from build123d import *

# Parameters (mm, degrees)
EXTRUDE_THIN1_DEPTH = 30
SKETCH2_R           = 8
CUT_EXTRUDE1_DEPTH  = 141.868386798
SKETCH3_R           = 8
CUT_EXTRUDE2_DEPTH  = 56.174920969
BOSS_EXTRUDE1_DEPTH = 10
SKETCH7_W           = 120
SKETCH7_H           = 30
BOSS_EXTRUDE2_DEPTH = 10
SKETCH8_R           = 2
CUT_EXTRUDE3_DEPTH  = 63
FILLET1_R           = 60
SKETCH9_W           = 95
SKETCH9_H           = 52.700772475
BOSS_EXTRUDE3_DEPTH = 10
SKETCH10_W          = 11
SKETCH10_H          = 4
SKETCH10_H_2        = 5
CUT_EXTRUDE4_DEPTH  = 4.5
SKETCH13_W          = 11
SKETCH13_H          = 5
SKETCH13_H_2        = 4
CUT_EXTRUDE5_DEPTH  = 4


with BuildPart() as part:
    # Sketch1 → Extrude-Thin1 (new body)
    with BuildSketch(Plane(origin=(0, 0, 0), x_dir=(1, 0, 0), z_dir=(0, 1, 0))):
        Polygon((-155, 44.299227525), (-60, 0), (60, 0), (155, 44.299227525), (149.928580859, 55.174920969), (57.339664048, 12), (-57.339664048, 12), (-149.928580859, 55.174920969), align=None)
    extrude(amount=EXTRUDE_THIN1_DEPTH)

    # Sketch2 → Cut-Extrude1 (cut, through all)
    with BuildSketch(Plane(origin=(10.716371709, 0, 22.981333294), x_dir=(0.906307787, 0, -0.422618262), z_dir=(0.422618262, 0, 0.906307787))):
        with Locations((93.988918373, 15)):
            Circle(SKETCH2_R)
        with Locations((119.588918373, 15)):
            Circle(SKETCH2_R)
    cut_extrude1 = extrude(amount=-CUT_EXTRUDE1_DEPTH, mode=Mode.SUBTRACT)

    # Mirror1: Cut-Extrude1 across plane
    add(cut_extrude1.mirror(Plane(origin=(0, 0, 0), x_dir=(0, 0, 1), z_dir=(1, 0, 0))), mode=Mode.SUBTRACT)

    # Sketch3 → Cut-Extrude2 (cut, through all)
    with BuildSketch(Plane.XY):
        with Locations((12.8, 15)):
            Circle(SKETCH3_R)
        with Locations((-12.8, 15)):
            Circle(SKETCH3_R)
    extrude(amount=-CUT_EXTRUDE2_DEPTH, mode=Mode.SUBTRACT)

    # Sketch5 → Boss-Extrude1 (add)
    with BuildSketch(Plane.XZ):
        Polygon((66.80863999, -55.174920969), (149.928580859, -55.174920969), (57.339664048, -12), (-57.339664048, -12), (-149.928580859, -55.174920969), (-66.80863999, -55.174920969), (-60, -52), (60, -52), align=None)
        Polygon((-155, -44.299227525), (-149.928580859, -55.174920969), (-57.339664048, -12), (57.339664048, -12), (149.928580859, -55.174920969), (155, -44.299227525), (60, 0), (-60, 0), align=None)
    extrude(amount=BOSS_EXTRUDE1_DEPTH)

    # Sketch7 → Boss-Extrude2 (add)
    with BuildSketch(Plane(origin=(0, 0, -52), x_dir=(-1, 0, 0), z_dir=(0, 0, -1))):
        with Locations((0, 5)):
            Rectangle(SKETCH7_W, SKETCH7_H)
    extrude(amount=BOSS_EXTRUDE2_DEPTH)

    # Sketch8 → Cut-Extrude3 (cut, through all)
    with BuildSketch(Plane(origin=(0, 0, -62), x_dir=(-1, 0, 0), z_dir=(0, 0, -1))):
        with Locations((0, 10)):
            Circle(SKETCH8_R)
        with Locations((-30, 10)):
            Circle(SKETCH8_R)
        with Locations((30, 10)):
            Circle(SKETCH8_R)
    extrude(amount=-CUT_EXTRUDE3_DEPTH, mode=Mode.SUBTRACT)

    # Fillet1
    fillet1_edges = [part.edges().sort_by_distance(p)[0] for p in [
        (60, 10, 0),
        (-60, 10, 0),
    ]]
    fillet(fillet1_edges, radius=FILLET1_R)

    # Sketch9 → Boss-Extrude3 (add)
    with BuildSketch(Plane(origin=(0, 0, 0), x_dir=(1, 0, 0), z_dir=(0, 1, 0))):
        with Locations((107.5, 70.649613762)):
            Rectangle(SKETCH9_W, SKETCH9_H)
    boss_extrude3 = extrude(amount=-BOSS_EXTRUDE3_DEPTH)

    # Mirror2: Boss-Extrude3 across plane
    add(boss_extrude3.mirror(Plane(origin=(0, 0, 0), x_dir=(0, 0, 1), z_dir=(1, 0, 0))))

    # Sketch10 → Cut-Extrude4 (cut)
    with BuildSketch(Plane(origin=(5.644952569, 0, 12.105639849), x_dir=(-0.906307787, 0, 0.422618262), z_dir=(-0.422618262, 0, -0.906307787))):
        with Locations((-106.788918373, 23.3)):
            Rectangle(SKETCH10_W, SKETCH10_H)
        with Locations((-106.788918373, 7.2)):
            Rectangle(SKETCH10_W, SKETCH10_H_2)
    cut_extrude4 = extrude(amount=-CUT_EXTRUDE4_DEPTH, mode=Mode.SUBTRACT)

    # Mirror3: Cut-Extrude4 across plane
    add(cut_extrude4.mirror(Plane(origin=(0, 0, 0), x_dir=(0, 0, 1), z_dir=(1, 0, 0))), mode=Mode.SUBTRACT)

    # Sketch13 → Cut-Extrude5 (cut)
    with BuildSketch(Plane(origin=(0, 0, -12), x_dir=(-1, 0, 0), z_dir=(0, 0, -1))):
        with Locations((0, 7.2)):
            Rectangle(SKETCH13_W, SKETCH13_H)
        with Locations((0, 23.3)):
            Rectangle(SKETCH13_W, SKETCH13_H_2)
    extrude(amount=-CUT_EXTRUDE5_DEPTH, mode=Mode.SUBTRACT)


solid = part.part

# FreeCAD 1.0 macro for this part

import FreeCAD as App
import Part
import Sketcher

V = App.Vector
Q = App.Units.Quantity


def edges_at(feature, points):
    """Names of the edges that pass closest to the given points."""
    edges = feature.Shape.Edges
    near = lambda p: min(range(len(edges)), key=lambda i: edges[i].distToShape(Part.Vertex(*p))[0])
    return sorted({f"Edge{near(p) + 1}" for p in points})

doc = App.newDocument("Part")
body = doc.addObject("PartDesign::Body", "Body")

# Sketch on XZ plane
sketch1 = body.newObject("Sketcher::SketchObject", "Sketch")
sketch1.AttachmentSupport = (doc.getObject("XZ_Plane"), [""])
sketch1.MapMode = "FlatFace"
sketch1.addGeometry(Part.LineSegment(V(-155, -44, 0), V(-60, 0, 0)), False)
sketch1.addGeometry(Part.LineSegment(V(-60, 0, 0), V(60, 0, 0)), False)
sketch1.addGeometry(Part.LineSegment(V(60, 0, 0), V(155, -44, 0)), False)
sketch1.addGeometry(Part.LineSegment(V(155, -44, 0), V(150, -55, 0)), False)
sketch1.addGeometry(Part.LineSegment(V(150, -55, 0), V(57, -12, 0)), False)
sketch1.addGeometry(Part.LineSegment(V(57, -12, 0), V(-57, -12, 0)), False)
sketch1.addGeometry(Part.LineSegment(V(-57, -12, 0), V(-150, -55, 0)), False)
sketch1.addGeometry(Part.LineSegment(V(-150, -55, 0), V(-155, -44, 0)), False)
sketch1.addConstraint(Sketcher.Constraint("Coincident", 0, 2, 1, 1))
sketch1.addConstraint(Sketcher.Constraint("Coincident", 1, 2, 2, 1))
sketch1.addConstraint(Sketcher.Constraint("Coincident", 2, 2, 3, 1))
sketch1.addConstraint(Sketcher.Constraint("Coincident", 3, 2, 4, 1))
sketch1.addConstraint(Sketcher.Constraint("Coincident", 4, 2, 5, 1))
sketch1.addConstraint(Sketcher.Constraint("Coincident", 5, 2, 6, 1))
sketch1.addConstraint(Sketcher.Constraint("Coincident", 6, 2, 7, 1))
sketch1.addConstraint(Sketcher.Constraint("Coincident", 7, 2, 0, 1))
sketch1.addConstraint(Sketcher.Constraint("Horizontal", 1))
sketch1.addConstraint(Sketcher.Constraint("Horizontal", 5))
sketch1.addConstraint(Sketcher.Constraint("Symmetric", 0, 2, 1, 2, -1, 1))
sketch1.addConstraint(Sketcher.Constraint("Symmetric", 3, 2, 6, 2, -2))
sketch1.addConstraint(Sketcher.Constraint("Symmetric", 2, 2, 7, 2, -2))
sketch1.addConstraint(Sketcher.Constraint("Perpendicular", 2, 3))
sketch1.addConstraint(Sketcher.Constraint("Perpendicular", 3, 4))
sketch1.addConstraint(Sketcher.Constraint("Parallel", 0, 6))
sketch1.addConstraint(Sketcher.Constraint("DistanceX", 1, 1, 1, 2, 120.0))
sketch1.addConstraint(Sketcher.Constraint("Angle", 0, Q("25 deg")))
sketch1.addConstraint(Sketcher.Constraint("Distance", 3, 12.0))
sketch1.addConstraint(Sketcher.Constraint("DistanceX", -1, 1, 2, 2, 155.0))
sketch1.addConstraint(Sketcher.Constraint("DistanceY", 4, 2, -1, 1, 12.0))
pad1 = body.newObject("PartDesign::Pad", "Pad")
pad1.Profile = sketch1
pad1.Length = 30
pad1.Reversed = True

# Sketch on an angled plane
sketch2 = body.newObject("Sketcher::SketchObject", "Sketch001")
sketch2.Placement = App.Placement(V(10.716372, 0, 22.981333), App.Rotation(V(0.906307787, 0, -0.422618262), V(0, 1, 0), V(0.422618262, 0, 0.906307787), "ZXY"))
sketch2.addGeometry(Part.Circle(V(94, 15, 0), V(0, 0, 1), 8), False)
sketch2.addGeometry(Part.Circle(V(120, 15, 0), V(0, 0, 1), 8), False)
sketch2.addConstraint(Sketcher.Constraint("Equal", 0, 1))
sketch2.addConstraint(Sketcher.Constraint("Horizontal", 0, 3, 1, 3))
sketch2.addConstraint(Sketcher.Constraint("Diameter", 0, 16.0))
sketch2.addConstraint(Sketcher.Constraint("DistanceY", -1, 1, 0, 3, 15.0))
sketch2.addConstraint(Sketcher.Constraint("DistanceX", 0, 3, 1, 3, 25.6))
sketch2.addConstraint(Sketcher.Constraint("DistanceX", -1, 1, 0, 3, 93.988918))
pocket1 = body.newObject("PartDesign::Pocket", "Pocket")
pocket1.Profile = sketch2
pocket1.Type = "ThroughAll"
doc.recompute()

mirrored = body.newObject("PartDesign::Mirrored", "Mirrored")
mirrored.Originals = [pocket1]
mirrored.MirrorPlane = (doc.getObject("YZ_Plane"), [""])
body.Tip = mirrored

# Sketch on XY plane
sketch3 = body.newObject("Sketcher::SketchObject", "Sketch002")
sketch3.AttachmentSupport = (doc.getObject("XY_Plane"), [""])
sketch3.MapMode = "FlatFace"
sketch3.addGeometry(Part.Circle(V(13, 15, 0), V(0, 0, 1), 8), False)
sketch3.addGeometry(Part.Circle(V(-13, 15, 0), V(0, 0, 1), 8), False)
sketch3.addConstraint(Sketcher.Constraint("Equal", 0, 1))
sketch3.addConstraint(Sketcher.Constraint("Symmetric", 0, 3, 1, 3, -2))
sketch3.addConstraint(Sketcher.Constraint("Diameter", 0, 16.0))
sketch3.addConstraint(Sketcher.Constraint("DistanceY", -1, 1, 0, 3, 15.0))
sketch3.addConstraint(Sketcher.Constraint("DistanceX", -1, 1, 0, 3, 12.8))
pocket2 = body.newObject("PartDesign::Pocket", "Pocket001")
pocket2.Profile = sketch3
pocket2.Type = "ThroughAll"

# Sketch on XZ plane
sketch4 = body.newObject("Sketcher::SketchObject", "Sketch003")
sketch4.AttachmentSupport = (doc.getObject("XZ_Plane"), [""])
sketch4.MapMode = "FlatFace"
sketch4.addGeometry(Part.LineSegment(V(67, -55, 0), V(150, -55, 0)), False)
sketch4.addGeometry(Part.LineSegment(V(150, -55, 0), V(155, -44, 0)), False)
sketch4.addGeometry(Part.LineSegment(V(155, -44, 0), V(60, 0, 0)), False)
sketch4.addGeometry(Part.LineSegment(V(60, 0, 0), V(-60, 0, 0)), False)
sketch4.addGeometry(Part.LineSegment(V(-60, 0, 0), V(-155, -44, 0)), False)
sketch4.addGeometry(Part.LineSegment(V(-155, -44, 0), V(-150, -55, 0)), False)
sketch4.addGeometry(Part.LineSegment(V(-150, -55, 0), V(-67, -55, 0)), False)
sketch4.addGeometry(Part.LineSegment(V(-67, -55, 0), V(-60, -52, 0)), False)
sketch4.addGeometry(Part.LineSegment(V(-60, -52, 0), V(60, -52, 0)), False)
sketch4.addGeometry(Part.LineSegment(V(60, -52, 0), V(67, -55, 0)), False)
sketch4.addConstraint(Sketcher.Constraint("Coincident", 0, 2, 1, 1))
sketch4.addConstraint(Sketcher.Constraint("Coincident", 1, 2, 2, 1))
sketch4.addConstraint(Sketcher.Constraint("Coincident", 2, 2, 3, 1))
sketch4.addConstraint(Sketcher.Constraint("Coincident", 3, 2, 4, 1))
sketch4.addConstraint(Sketcher.Constraint("Coincident", 4, 2, 5, 1))
sketch4.addConstraint(Sketcher.Constraint("Coincident", 5, 2, 6, 1))
sketch4.addConstraint(Sketcher.Constraint("Coincident", 6, 2, 7, 1))
sketch4.addConstraint(Sketcher.Constraint("Coincident", 7, 2, 8, 1))
sketch4.addConstraint(Sketcher.Constraint("Coincident", 8, 2, 9, 1))
sketch4.addConstraint(Sketcher.Constraint("Coincident", 9, 2, 0, 1))
sketch4.addConstraint(Sketcher.Constraint("Horizontal", 0))
sketch4.addConstraint(Sketcher.Constraint("Horizontal", 3))
sketch4.addConstraint(Sketcher.Constraint("Horizontal", 6))
sketch4.addConstraint(Sketcher.Constraint("Horizontal", 8))
sketch4.addConstraint(Sketcher.Constraint("Symmetric", 2, 2, 3, 2, -1, 1))
sketch4.addConstraint(Sketcher.Constraint("Symmetric", 1, 2, 4, 2, -2))
sketch4.addConstraint(Sketcher.Constraint("Symmetric", 0, 2, 5, 2, -2))
sketch4.addConstraint(Sketcher.Constraint("Perpendicular", 1, 2))
sketch4.addConstraint(Sketcher.Constraint("Perpendicular", 5, 7))
sketch4.addConstraint(Sketcher.Constraint("Parallel", 2, 9))
sketch4.addConstraint(Sketcher.Constraint("Vertical", 3, 2, 7, 2))
sketch4.addConstraint(Sketcher.Constraint("Vertical", 2, 2, 8, 2))
sketch4.addConstraint(Sketcher.Constraint("DistanceX", 3, 2, 3, 1, 120.0))
sketch4.addConstraint(Sketcher.Constraint("Angle", 1, Q("65 deg")))
sketch4.addConstraint(Sketcher.Constraint("Distance", 1, 12.0))
sketch4.addConstraint(Sketcher.Constraint("DistanceX", -1, 1, 1, 2, 155.0))
sketch4.addConstraint(Sketcher.Constraint("DistanceY", 7, 2, -1, 1, 52.0))
pad2 = body.newObject("PartDesign::Pad", "Pad001")
pad2.Profile = sketch4
pad2.Length = 10

# Sketch on XY plane
sketch5 = body.newObject("Sketcher::SketchObject", "Sketch004")
sketch5.AttachmentSupport = (doc.getObject("XY_Plane"), [""])
sketch5.MapMode = "FlatFace"
sketch5.AttachmentOffset = App.Placement(V(0, 0, -52), App.Rotation())
sketch5.addGeometry(Part.LineSegment(V(60, 20, 0), V(60, -10, 0)), False)
sketch5.addGeometry(Part.LineSegment(V(60, -10, 0), V(-60, -10, 0)), False)
sketch5.addGeometry(Part.LineSegment(V(-60, -10, 0), V(-60, 20, 0)), False)
sketch5.addGeometry(Part.LineSegment(V(-60, 20, 0), V(60, 20, 0)), False)
sketch5.addConstraint(Sketcher.Constraint("Coincident", 0, 2, 1, 1))
sketch5.addConstraint(Sketcher.Constraint("Coincident", 1, 2, 2, 1))
sketch5.addConstraint(Sketcher.Constraint("Coincident", 2, 2, 3, 1))
sketch5.addConstraint(Sketcher.Constraint("Coincident", 3, 2, 0, 1))
sketch5.addConstraint(Sketcher.Constraint("Vertical", 0))
sketch5.addConstraint(Sketcher.Constraint("Horizontal", 1))
sketch5.addConstraint(Sketcher.Constraint("Vertical", 2))
sketch5.addConstraint(Sketcher.Constraint("Horizontal", 3))
sketch5.addConstraint(Sketcher.Constraint("DistanceX", 1, 2, 1, 1, 120.0))
sketch5.addConstraint(Sketcher.Constraint("DistanceY", 0, 2, 0, 1, 30.0))
sketch5.addConstraint(Sketcher.Constraint("DistanceX", -1, 1, 0, 2, 60.0))
sketch5.addConstraint(Sketcher.Constraint("DistanceY", 0, 2, -1, 1, 10.0))
pad3 = body.newObject("PartDesign::Pad", "Pad002")
pad3.Profile = sketch5
pad3.Length = 10
pad3.Reversed = True

# Sketch on XY plane
sketch6 = body.newObject("Sketcher::SketchObject", "Sketch005")
sketch6.AttachmentSupport = (doc.getObject("XY_Plane"), [""])
sketch6.MapMode = "FlatFace"
sketch6.AttachmentOffset = App.Placement(V(0, 0, -62), App.Rotation())
sketch6.addGeometry(Part.Circle(V(0, 10, 0), V(0, 0, 1), 2), False)
sketch6.addGeometry(Part.Circle(V(30, 10, 0), V(0, 0, 1), 2), False)
sketch6.addGeometry(Part.Circle(V(-30, 10, 0), V(0, 0, 1), 2), False)
sketch6.addConstraint(Sketcher.Constraint("Equal", 0, 1))
sketch6.addConstraint(Sketcher.Constraint("Equal", 1, 2))
sketch6.addConstraint(Sketcher.Constraint("Symmetric", 1, 3, 2, 3, -2))
sketch6.addConstraint(Sketcher.Constraint("PointOnObject", 0, 3, -2))
sketch6.addConstraint(Sketcher.Constraint("Horizontal", 0, 3, 1, 3))
sketch6.addConstraint(Sketcher.Constraint("Diameter", 0, 4.0))
sketch6.addConstraint(Sketcher.Constraint("DistanceY", -1, 1, 0, 3, 10.0))
sketch6.addConstraint(Sketcher.Constraint("DistanceX", -1, 1, 1, 3, 30.0))
pocket3 = body.newObject("PartDesign::Pocket", "Pocket002")
pocket3.Profile = sketch6
pocket3.Type = "ThroughAll"
pocket3.Reversed = True
doc.recompute()

fillet = body.newObject("PartDesign::Fillet", "Fillet")
fillet.Base = (pocket3, edges_at(pocket3, [(60, 10, 0), (-60, 10, 0)]))
fillet.Radius = 60

# Sketch on XZ plane
sketch7 = body.newObject("Sketcher::SketchObject", "Sketch006")
sketch7.AttachmentSupport = (doc.getObject("XZ_Plane"), [""])
sketch7.MapMode = "FlatFace"
sketch7.addGeometry(Part.LineSegment(V(60, -97, 0), V(60, -44, 0)), False)
sketch7.addGeometry(Part.LineSegment(V(60, -44, 0), V(155, -44, 0)), False)
sketch7.addGeometry(Part.LineSegment(V(155, -44, 0), V(155, -97, 0)), False)
sketch7.addGeometry(Part.LineSegment(V(155, -97, 0), V(60, -97, 0)), False)
sketch7.addConstraint(Sketcher.Constraint("Coincident", 0, 2, 1, 1))
sketch7.addConstraint(Sketcher.Constraint("Coincident", 1, 2, 2, 1))
sketch7.addConstraint(Sketcher.Constraint("Coincident", 2, 2, 3, 1))
sketch7.addConstraint(Sketcher.Constraint("Coincident", 3, 2, 0, 1))
sketch7.addConstraint(Sketcher.Constraint("Vertical", 0))
sketch7.addConstraint(Sketcher.Constraint("Horizontal", 1))
sketch7.addConstraint(Sketcher.Constraint("Vertical", 2))
sketch7.addConstraint(Sketcher.Constraint("Horizontal", 3))
sketch7.addConstraint(Sketcher.Constraint("DistanceX", 1, 1, 1, 2, 95.0))
sketch7.addConstraint(Sketcher.Constraint("DistanceX", -1, 1, 0, 2, 60.0))
sketch7.addConstraint(Sketcher.Constraint("DistanceY", 2, 2, -1, 1, 97.0))
sketch7.addConstraint(Sketcher.Constraint("DistanceY", 0, 1, 0, 2, 52.700772))
pad4 = body.newObject("PartDesign::Pad", "Pad003")
pad4.Profile = sketch7
pad4.Length = 10
doc.recompute()

mirrored2 = body.newObject("PartDesign::Mirrored", "Mirrored001")
mirrored2.Originals = [pad4]
mirrored2.MirrorPlane = (doc.getObject("YZ_Plane"), [""])
body.Tip = mirrored2

# Sketch on an angled plane
sketch8 = body.newObject("Sketcher::SketchObject", "Sketch007")
sketch8.Placement = App.Placement(V(5.644953, 0, 12.10564), App.Rotation(V(-0.906307787, 0, 0.422618262), V(0, 1, 0), V(-0.422618262, 0, -0.906307787), "ZXY"))
sketch8.addGeometry(Part.LineSegment(V(-112.3, 25.3, 0), V(-112.3, 21.3, 0)), False)
sketch8.addGeometry(Part.LineSegment(V(-112.3, 21.3, 0), V(-101.3, 21.3, 0)), False)
sketch8.addGeometry(Part.LineSegment(V(-101.3, 21.3, 0), V(-101.3, 25.3, 0)), False)
sketch8.addGeometry(Part.LineSegment(V(-101.3, 25.3, 0), V(-112.3, 25.3, 0)), False)
sketch8.addGeometry(Part.LineSegment(V(-112.3, 9.7, 0), V(-112.3, 4.7, 0)), False)
sketch8.addGeometry(Part.LineSegment(V(-112.3, 4.7, 0), V(-101.3, 4.7, 0)), False)
sketch8.addGeometry(Part.LineSegment(V(-101.3, 4.7, 0), V(-101.3, 9.7, 0)), False)
sketch8.addGeometry(Part.LineSegment(V(-101.3, 9.7, 0), V(-112.3, 9.7, 0)), False)
sketch8.addConstraint(Sketcher.Constraint("Coincident", 0, 2, 1, 1))
sketch8.addConstraint(Sketcher.Constraint("Coincident", 1, 2, 2, 1))
sketch8.addConstraint(Sketcher.Constraint("Coincident", 2, 2, 3, 1))
sketch8.addConstraint(Sketcher.Constraint("Coincident", 3, 2, 0, 1))
sketch8.addConstraint(Sketcher.Constraint("Coincident", 4, 2, 5, 1))
sketch8.addConstraint(Sketcher.Constraint("Coincident", 5, 2, 6, 1))
sketch8.addConstraint(Sketcher.Constraint("Coincident", 6, 2, 7, 1))
sketch8.addConstraint(Sketcher.Constraint("Coincident", 7, 2, 4, 1))
sketch8.addConstraint(Sketcher.Constraint("Vertical", 0))
sketch8.addConstraint(Sketcher.Constraint("Horizontal", 1))
sketch8.addConstraint(Sketcher.Constraint("Vertical", 2))
sketch8.addConstraint(Sketcher.Constraint("Horizontal", 3))
sketch8.addConstraint(Sketcher.Constraint("Vertical", 4))
sketch8.addConstraint(Sketcher.Constraint("Horizontal", 5))
sketch8.addConstraint(Sketcher.Constraint("Vertical", 6))
sketch8.addConstraint(Sketcher.Constraint("Horizontal", 7))
sketch8.addConstraint(Sketcher.Constraint("Vertical", 3, 2, 4, 2))
sketch8.addConstraint(Sketcher.Constraint("Vertical", 2, 2, 5, 2))
sketch8.addConstraint(Sketcher.Constraint("DistanceX", 1, 1, 1, 2, 11.0))
sketch8.addConstraint(Sketcher.Constraint("DistanceY", 0, 2, 0, 1, 4.0))
sketch8.addConstraint(Sketcher.Constraint("DistanceY", 4, 2, 4, 1, 5.0))
sketch8.addConstraint(Sketcher.Constraint("DistanceY", -1, 1, 0, 2, 21.3))
sketch8.addConstraint(Sketcher.Constraint("DistanceY", -1, 1, 4, 2, 4.7))
sketch8.addConstraint(Sketcher.Constraint("DistanceX", 0, 2, -1, 1, 112.288918))
pocket4 = body.newObject("PartDesign::Pocket", "Pocket003")
pocket4.Profile = sketch8
pocket4.Length = 4.5
doc.recompute()

mirrored3 = body.newObject("PartDesign::Mirrored", "Mirrored002")
mirrored3.Originals = [pocket4]
mirrored3.MirrorPlane = (doc.getObject("YZ_Plane"), [""])
body.Tip = mirrored3

# Sketch on XY plane
sketch9 = body.newObject("Sketcher::SketchObject", "Sketch008")
sketch9.AttachmentSupport = (doc.getObject("XY_Plane"), [""])
sketch9.MapMode = "FlatFace"
sketch9.AttachmentOffset = App.Placement(V(0, 0, -12), App.Rotation())
sketch9.addGeometry(Part.LineSegment(V(5.5, 9.7, 0), V(5.5, 4.7, 0)), False)
sketch9.addGeometry(Part.LineSegment(V(5.5, 4.7, 0), V(-5.5, 4.7, 0)), False)
sketch9.addGeometry(Part.LineSegment(V(-5.5, 4.7, 0), V(-5.5, 9.7, 0)), False)
sketch9.addGeometry(Part.LineSegment(V(-5.5, 9.7, 0), V(5.5, 9.7, 0)), False)
sketch9.addGeometry(Part.LineSegment(V(5.5, 25.3, 0), V(5.5, 21.3, 0)), False)
sketch9.addGeometry(Part.LineSegment(V(5.5, 21.3, 0), V(-5.5, 21.3, 0)), False)
sketch9.addGeometry(Part.LineSegment(V(-5.5, 21.3, 0), V(-5.5, 25.3, 0)), False)
sketch9.addGeometry(Part.LineSegment(V(-5.5, 25.3, 0), V(5.5, 25.3, 0)), False)
sketch9.addConstraint(Sketcher.Constraint("Coincident", 0, 2, 1, 1))
sketch9.addConstraint(Sketcher.Constraint("Coincident", 1, 2, 2, 1))
sketch9.addConstraint(Sketcher.Constraint("Coincident", 2, 2, 3, 1))
sketch9.addConstraint(Sketcher.Constraint("Coincident", 3, 2, 0, 1))
sketch9.addConstraint(Sketcher.Constraint("Coincident", 4, 2, 5, 1))
sketch9.addConstraint(Sketcher.Constraint("Coincident", 5, 2, 6, 1))
sketch9.addConstraint(Sketcher.Constraint("Coincident", 6, 2, 7, 1))
sketch9.addConstraint(Sketcher.Constraint("Coincident", 7, 2, 4, 1))
sketch9.addConstraint(Sketcher.Constraint("Vertical", 0))
sketch9.addConstraint(Sketcher.Constraint("Horizontal", 1))
sketch9.addConstraint(Sketcher.Constraint("Vertical", 2))
sketch9.addConstraint(Sketcher.Constraint("Horizontal", 3))
sketch9.addConstraint(Sketcher.Constraint("Vertical", 4))
sketch9.addConstraint(Sketcher.Constraint("Horizontal", 5))
sketch9.addConstraint(Sketcher.Constraint("Vertical", 6))
sketch9.addConstraint(Sketcher.Constraint("Horizontal", 7))
sketch9.addConstraint(Sketcher.Constraint("Vertical", 3, 2, 4, 2))
sketch9.addConstraint(Sketcher.Constraint("Vertical", 2, 2, 5, 2))
sketch9.addConstraint(Sketcher.Constraint("DistanceX", 1, 2, 1, 1, 11.0))
sketch9.addConstraint(Sketcher.Constraint("DistanceY", 0, 2, 0, 1, 5.0))
sketch9.addConstraint(Sketcher.Constraint("DistanceY", 4, 2, 4, 1, 4.0))
sketch9.addConstraint(Sketcher.Constraint("DistanceX", -1, 1, 0, 2, 5.5))
sketch9.addConstraint(Sketcher.Constraint("DistanceY", -1, 1, 0, 2, 4.7))
sketch9.addConstraint(Sketcher.Constraint("DistanceY", -1, 1, 4, 2, 21.3))
pocket5 = body.newObject("PartDesign::Pocket", "Pocket004")
pocket5.Profile = sketch9
pocket5.Length = 4
pocket5.Reversed = True

doc.recompute()
